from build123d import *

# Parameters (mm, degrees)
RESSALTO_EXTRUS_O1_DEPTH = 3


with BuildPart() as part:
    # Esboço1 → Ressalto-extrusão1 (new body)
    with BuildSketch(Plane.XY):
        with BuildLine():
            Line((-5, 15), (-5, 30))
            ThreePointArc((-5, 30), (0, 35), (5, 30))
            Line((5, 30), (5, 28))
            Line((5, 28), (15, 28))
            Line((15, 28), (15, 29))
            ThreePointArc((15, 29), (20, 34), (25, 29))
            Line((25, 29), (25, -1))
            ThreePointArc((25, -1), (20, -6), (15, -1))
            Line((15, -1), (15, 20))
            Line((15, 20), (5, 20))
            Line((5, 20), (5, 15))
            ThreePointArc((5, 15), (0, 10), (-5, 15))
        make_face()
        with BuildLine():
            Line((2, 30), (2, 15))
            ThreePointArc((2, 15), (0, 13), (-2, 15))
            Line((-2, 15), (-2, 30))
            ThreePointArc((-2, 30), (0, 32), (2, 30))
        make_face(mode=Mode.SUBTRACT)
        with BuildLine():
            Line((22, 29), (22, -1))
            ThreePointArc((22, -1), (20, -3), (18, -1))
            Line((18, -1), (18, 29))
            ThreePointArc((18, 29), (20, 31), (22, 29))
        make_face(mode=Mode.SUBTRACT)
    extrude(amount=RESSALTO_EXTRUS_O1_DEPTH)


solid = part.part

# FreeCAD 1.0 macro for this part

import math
import FreeCAD as App
import Part
import Sketcher

doc = App.newDocument("Part")
params = doc.addObject("Spreadsheet::Sheet", "Params")
for row, (alias, value) in enumerate([
    ("sketch1_radius", "5 mm"),
    ("sketch1_radius2", "2 mm"),
    ("sketch1_width", "10 mm"),
    ("sketch1_height", "15 mm"),
    ("sketch1_height2", "5 mm"),
    ("pad1_length", "3 mm"),
], start=1):
    params.set(f"A{row}", alias)
    params.set(f"B{row}", "=" + value)
    params.setAlias(f"B{row}", alias)

body = doc.addObject("PartDesign::Body", "Body")

sketch1 = body.newObject("Sketcher::SketchObject", "Sketch")
sketch1.AttachmentSupport = (doc.getObject("XY_Plane"), [""])
sketch1.MapMode = "FlatFace"
sketch1.addGeometry(Part.LineSegment(App.Vector(-5, 30, 0), App.Vector(-5, 15, 0)), False)
sketch1.addGeometry(Part.ArcOfCircle(Part.Circle(App.Vector(0, 15, 0), App.Vector(0, 0, 1), 5), math.radians(180), math.radians(360)), False)
sketch1.addGeometry(Part.LineSegment(App.Vector(5, 15, 0), App.Vector(5, 20, 0)), False)
sketch1.addGeometry(Part.LineSegment(App.Vector(5, 20, 0), App.Vector(15, 20, 0)), False)
sketch1.addGeometry(Part.LineSegment(App.Vector(15, 20, 0), App.Vector(15, -1, 0)), False)
sketch1.addGeometry(Part.ArcOfCircle(Part.Circle(App.Vector(20, -1, 0), App.Vector(0, 0, 1), 5), math.radians(180), math.radians(360)), False)
sketch1.addGeometry(Part.LineSegment(App.Vector(25, -1, 0), App.Vector(25, 29, 0)), False)
sketch1.addGeometry(Part.ArcOfCircle(Part.Circle(App.Vector(20, 29, 0), App.Vector(0, 0, 1), 5), math.radians(0), math.radians(180)), False)
sketch1.addGeometry(Part.LineSegment(App.Vector(15, 29, 0), App.Vector(15, 28, 0)), False)
sketch1.addGeometry(Part.LineSegment(App.Vector(15, 28, 0), App.Vector(5, 28, 0)), False)
sketch1.addGeometry(Part.LineSegment(App.Vector(5, 28, 0), App.Vector(5, 30, 0)), False)
sketch1.addGeometry(Part.ArcOfCircle(Part.Circle(App.Vector(0, 30, 0), App.Vector(0, 0, 1), 5), math.radians(0), math.radians(180)), False)
sketch1.addGeometry(Part.LineSegment(App.Vector(22, 29, 0), App.Vector(22, -1, 0)), False)
sketch1.addGeometry(Part.ArcOfCircle(Part.Circle(App.Vector(20, -1, 0), App.Vector(0, 0, 1), 2), math.radians(180), math.radians(360)), False)
sketch1.addGeometry(Part.LineSegment(App.Vector(18, -1, 0), App.Vector(18, 29, 0)), False)
sketch1.addGeometry(Part.ArcOfCircle(Part.Circle(App.Vector(20, 29, 0), App.Vector(0, 0, 1), 2), math.radians(0), math.radians(180)), False)
sketch1.addGeometry(Part.LineSegment(App.Vector(2, 30, 0), App.Vector(2, 15, 0)), False)
sketch1.addGeometry(Part.ArcOfCircle(Part.Circle(App.Vector(0, 15, 0), App.Vector(0, 0, 1), 2), math.radians(180), math.radians(360)), False)
sketch1.addGeometry(Part.LineSegment(App.Vector(-2, 15, 0), App.Vector(-2, 30, 0)), False)
sketch1.addGeometry(Part.ArcOfCircle(Part.Circle(App.Vector(0, 30, 0), App.Vector(0, 0, 1), 2), math.radians(0), math.radians(180)), False)
sketch1.addConstraint(Sketcher.Constraint("Tangent", 0, 2, 1, 1))
sketch1.addConstraint(Sketcher.Constraint("Tangent", 1, 2, 2, 1))
sketch1.addConstraint(Sketcher.Constraint("Coincident", 2, 2, 3, 1))
sketch1.addConstraint(Sketcher.Constraint("Coincident", 3, 2, 4, 1))
sketch1.addConstraint(Sketcher.Constraint("Tangent", 4, 2, 5, 1))
sketch1.addConstraint(Sketcher.Constraint("Tangent", 5, 2, 6, 1))
sketch1.addConstraint(Sketcher.Constraint("Tangent", 6, 2, 7, 1))
sketch1.addConstraint(Sketcher.Constraint("Tangent", 7, 2, 8, 1))
sketch1.addConstraint(Sketcher.Constraint("Coincident", 8, 2, 9, 1))
sketch1.addConstraint(Sketcher.Constraint("Coincident", 9, 2, 10, 1))
sketch1.addConstraint(Sketcher.Constraint("Tangent", 10, 2, 11, 1))
sketch1.addConstraint(Sketcher.Constraint("Tangent", 11, 2, 0, 1))
sketch1.addConstraint(Sketcher.Constraint("Tangent", 12, 2, 13, 2))
sketch1.addConstraint(Sketcher.Constraint("Tangent", 13, 1, 14, 1))
sketch1.addConstraint(Sketcher.Constraint("Tangent", 14, 2, 15, 2))
sketch1.addConstraint(Sketcher.Constraint("Tangent", 15, 1, 12, 1))
sketch1.addConstraint(Sketcher.Constraint("Tangent", 16, 2, 17, 2))
sketch1.addConstraint(Sketcher.Constraint("Tangent", 17, 1, 18, 1))
sketch1.addConstraint(Sketcher.Constraint("Tangent", 18, 2, 19, 2))
sketch1.addConstraint(Sketcher.Constraint("Tangent", 19, 1, 16, 1))
sketch1.addConstraint(Sketcher.Constraint("Vertical", 0))
sketch1.addConstraint(Sketcher.Constraint("Vertical", 2))
sketch1.addConstraint(Sketcher.Constraint("Horizontal", 3))
sketch1.addConstraint(Sketcher.Constraint("Vertical", 4))
sketch1.addConstraint(Sketcher.Constraint("Vertical", 6))
sketch1.addConstraint(Sketcher.Constraint("Vertical", 8))
sketch1.addConstraint(Sketcher.Constraint("Horizontal", 9))
sketch1.addConstraint(Sketcher.Constraint("Vertical", 10))
sketch1.addConstraint(Sketcher.Constraint("Vertical", 12))
sketch1.addConstraint(Sketcher.Constraint("Vertical", 14))
sketch1.addConstraint(Sketcher.Constraint("Vertical", 16))
sketch1.addConstraint(Sketcher.Constraint("Vertical", 18))
sketch1.addConstraint(Sketcher.Constraint("Coincident", 13, 3, 5, 3))
sketch1.addConstraint(Sketcher.Constraint("Coincident", 15, 3, 7, 3))
sketch1.addConstraint(Sketcher.Constraint("Coincident", 17, 3, 1, 3))
sketch1.addConstraint(Sketcher.Constraint("Coincident", 19, 3, 11, 3))
sketch1.addConstraint(Sketcher.Constraint("Equal", 1, 5))
sketch1.addConstraint(Sketcher.Constraint("Equal", 15, 17))
sketch1.addConstraint(Sketcher.Constraint("PointOnObject", 1, 3, -2))
sketch1.addConstraint(Sketcher.Constraint("Radius", 1, 5.0))
sketch1.addConstraint(Sketcher.Constraint("Radius", 13, 2.0))
sketch1.addConstraint(Sketcher.Constraint("DistanceX", 3, 1, 3, 2, 10.0))
sketch1.addConstraint(Sketcher.Constraint("DistanceY", 0, 2, 0, 1, 15.0))
sketch1.addConstraint(Sketcher.Constraint("DistanceY", 2, 1, 2, 2, 5.0))
sketch1.addConstraint(Sketcher.Constraint("DistanceY", 4, 2, 4, 1, 21.0))
sketch1.addConstraint(Sketcher.Constraint("DistanceY", 6, 1, 6, 2, 30.0))
sketch1.addConstraint(Sketcher.Constraint("DistanceY", 8, 2, 8, 1, 1.0))
sketch1.addConstraint(Sketcher.Constraint("DistanceY", -1, 1, 1, 3, 15.0))
sketch1.setExpression("Constraints[39]", "Params.sketch1_radius")
sketch1.setExpression("Constraints[40]", "Params.sketch1_radius2")
sketch1.setExpression("Constraints[41]", "Params.sketch1_width")
sketch1.setExpression("Constraints[42]", "Params.sketch1_height")
sketch1.setExpression("Constraints[43]", "Params.sketch1_height2")
pad1 = body.newObject("PartDesign::Pad", "Pad")
pad1.Profile = sketch1
pad1.setExpression("Length", "Params.pad1_length")

doc.recompute()
